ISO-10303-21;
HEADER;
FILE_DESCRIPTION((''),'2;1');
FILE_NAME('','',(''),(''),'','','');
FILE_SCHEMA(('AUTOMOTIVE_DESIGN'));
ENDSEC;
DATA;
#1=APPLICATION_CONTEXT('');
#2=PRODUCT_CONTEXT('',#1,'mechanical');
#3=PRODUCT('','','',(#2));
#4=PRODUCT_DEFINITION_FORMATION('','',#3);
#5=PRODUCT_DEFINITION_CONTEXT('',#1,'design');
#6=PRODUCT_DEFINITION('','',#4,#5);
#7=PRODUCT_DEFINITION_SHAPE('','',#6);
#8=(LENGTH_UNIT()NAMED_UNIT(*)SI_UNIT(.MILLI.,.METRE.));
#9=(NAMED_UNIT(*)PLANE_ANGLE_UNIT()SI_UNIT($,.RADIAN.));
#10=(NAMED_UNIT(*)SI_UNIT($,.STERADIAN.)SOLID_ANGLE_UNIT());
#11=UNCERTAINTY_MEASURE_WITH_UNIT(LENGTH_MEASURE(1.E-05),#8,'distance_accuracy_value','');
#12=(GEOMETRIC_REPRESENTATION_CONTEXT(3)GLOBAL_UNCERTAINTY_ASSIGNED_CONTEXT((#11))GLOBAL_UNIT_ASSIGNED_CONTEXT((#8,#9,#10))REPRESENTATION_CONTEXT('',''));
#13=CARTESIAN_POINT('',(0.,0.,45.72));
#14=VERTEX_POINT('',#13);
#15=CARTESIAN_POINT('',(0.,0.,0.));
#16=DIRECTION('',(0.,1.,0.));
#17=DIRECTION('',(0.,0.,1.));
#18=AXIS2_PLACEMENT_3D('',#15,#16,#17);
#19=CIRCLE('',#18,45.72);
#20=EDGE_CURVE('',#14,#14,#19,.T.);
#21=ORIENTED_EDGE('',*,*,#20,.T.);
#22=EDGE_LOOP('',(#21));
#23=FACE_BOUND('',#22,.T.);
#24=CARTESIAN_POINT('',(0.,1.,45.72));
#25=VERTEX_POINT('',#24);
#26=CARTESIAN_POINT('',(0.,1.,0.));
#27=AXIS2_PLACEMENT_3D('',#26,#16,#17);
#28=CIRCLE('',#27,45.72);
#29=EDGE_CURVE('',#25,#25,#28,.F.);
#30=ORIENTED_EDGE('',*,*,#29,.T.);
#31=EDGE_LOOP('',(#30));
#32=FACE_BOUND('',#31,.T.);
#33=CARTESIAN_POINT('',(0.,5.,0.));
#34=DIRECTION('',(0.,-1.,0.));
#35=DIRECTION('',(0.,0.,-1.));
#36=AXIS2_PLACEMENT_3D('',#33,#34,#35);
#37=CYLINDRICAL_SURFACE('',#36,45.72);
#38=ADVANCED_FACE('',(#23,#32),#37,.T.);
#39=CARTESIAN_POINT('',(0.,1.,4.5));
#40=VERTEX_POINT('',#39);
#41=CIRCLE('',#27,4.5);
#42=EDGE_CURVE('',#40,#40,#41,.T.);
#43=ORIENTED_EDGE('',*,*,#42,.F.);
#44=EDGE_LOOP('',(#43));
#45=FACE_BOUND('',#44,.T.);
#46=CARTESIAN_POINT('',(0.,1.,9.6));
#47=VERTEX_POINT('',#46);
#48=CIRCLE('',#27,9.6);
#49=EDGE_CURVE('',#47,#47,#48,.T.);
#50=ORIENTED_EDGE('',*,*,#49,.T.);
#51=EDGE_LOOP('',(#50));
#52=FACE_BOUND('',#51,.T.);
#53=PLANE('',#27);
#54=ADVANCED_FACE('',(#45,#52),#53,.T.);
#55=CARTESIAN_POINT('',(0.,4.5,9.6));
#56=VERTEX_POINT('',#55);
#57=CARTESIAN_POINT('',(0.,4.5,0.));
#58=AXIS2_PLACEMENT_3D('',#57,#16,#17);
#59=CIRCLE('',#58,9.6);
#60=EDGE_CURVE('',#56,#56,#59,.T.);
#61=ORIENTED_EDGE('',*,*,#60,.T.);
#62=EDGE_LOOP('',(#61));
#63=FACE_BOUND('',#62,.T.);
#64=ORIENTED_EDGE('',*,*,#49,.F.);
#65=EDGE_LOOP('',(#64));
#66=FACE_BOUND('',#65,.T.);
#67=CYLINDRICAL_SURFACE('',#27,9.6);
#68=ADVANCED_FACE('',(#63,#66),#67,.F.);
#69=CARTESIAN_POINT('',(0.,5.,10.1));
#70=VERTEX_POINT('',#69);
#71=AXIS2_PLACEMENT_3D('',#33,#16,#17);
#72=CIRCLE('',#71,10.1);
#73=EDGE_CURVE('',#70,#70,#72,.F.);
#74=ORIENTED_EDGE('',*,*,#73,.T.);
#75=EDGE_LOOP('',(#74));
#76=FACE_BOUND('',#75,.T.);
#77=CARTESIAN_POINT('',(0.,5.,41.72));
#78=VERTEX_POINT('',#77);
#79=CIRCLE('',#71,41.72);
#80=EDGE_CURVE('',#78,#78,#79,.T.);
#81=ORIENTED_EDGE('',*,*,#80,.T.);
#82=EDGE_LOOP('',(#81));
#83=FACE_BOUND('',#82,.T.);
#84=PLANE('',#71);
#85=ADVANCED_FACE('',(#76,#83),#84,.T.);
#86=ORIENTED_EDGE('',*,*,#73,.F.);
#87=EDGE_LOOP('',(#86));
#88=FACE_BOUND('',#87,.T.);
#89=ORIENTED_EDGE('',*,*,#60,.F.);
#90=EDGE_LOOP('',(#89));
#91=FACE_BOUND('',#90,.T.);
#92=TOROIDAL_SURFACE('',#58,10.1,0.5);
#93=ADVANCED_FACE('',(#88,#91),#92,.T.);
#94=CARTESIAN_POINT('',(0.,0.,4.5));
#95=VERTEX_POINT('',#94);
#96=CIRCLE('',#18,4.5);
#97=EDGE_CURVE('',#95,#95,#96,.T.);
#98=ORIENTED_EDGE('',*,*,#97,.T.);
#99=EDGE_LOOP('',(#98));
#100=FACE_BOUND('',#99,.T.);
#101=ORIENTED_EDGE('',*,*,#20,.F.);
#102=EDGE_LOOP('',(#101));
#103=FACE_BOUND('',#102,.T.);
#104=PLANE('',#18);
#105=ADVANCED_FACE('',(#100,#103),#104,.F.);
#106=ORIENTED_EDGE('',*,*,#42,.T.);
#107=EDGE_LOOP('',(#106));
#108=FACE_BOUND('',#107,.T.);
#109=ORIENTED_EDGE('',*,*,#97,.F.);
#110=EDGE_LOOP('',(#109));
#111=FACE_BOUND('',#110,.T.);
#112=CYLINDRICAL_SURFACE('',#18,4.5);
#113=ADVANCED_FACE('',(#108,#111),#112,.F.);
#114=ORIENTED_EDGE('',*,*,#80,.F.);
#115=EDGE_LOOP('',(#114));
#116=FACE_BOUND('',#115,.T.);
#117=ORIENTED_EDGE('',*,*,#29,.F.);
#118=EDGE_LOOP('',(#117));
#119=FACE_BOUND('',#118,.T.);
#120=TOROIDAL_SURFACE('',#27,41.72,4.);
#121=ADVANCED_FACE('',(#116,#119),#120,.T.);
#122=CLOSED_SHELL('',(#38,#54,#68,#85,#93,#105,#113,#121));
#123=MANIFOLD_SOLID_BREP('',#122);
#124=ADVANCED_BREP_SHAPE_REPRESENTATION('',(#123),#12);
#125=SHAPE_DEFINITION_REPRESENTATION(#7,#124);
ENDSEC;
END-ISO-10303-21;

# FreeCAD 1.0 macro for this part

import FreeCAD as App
import Part
import Sketcher
from FreeCAD import Vector
Q = App.Units.Quantity


def edges_at(feature, points):
    """Names of the edges that pass closest to the given points."""
    edges = feature.Shape.Edges
    near = lambda p: min(range(len(edges)), key=lambda i: edges[i].distToShape(Part.Vertex(*p))[0])
    return sorted({f"Edge{near(p) + 1}" for p in points})

doc = App.newDocument("Part")
body = doc.addObject("PartDesign::Body", "Body")

sketch1 = body.newObject("Sketcher::SketchObject", "Sketch")
sketch1.AttachmentSupport = (doc.getObject("XZ_Plane"), [""])
sketch1.MapMode = "FlatFace"
sketch1.addGeometry(Part.Circle(Vector(0, 0, 0), Vector(0, 0, 1), 46), False)
sketch1.addConstraint([
    Sketcher.Constraint("Coincident", 0, 3, -1, 1),
    Sketcher.Constraint("Diameter", 0, Q("91.44 mm")),
])
pad1 = body.newObject("PartDesign::Pad", "Pad")
pad1.Profile = sketch1
pad1.Length = 5
pad1.Reversed = True

sketch2 = body.newObject("Sketcher::SketchObject", "Sketch001")
sketch2.AttachmentSupport = (doc.getObject("XZ_Plane"), [""])
sketch2.MapMode = "FlatFace"
sketch2.AttachmentOffset = App.Placement(Vector(0, 0, -5), App.Rotation())
sketch2.addGeometry(Part.Circle(Vector(0, 0, 0), Vector(0, 0, 1), 10), False)
sketch2.addConstraint([
    Sketcher.Constraint("Coincident", 0, 3, -1, 1),
    Sketcher.Constraint("Diameter", 0, Q("19.2 mm")),
])
pocket1 = body.newObject("PartDesign::Pocket", "Pocket")
pocket1.Profile = sketch2
pocket1.Length = 4
pocket1.Reversed = True

sketch3 = body.newObject("Sketcher::SketchObject", "Sketch002")
sketch3.AttachmentSupport = (doc.getObject("XZ_Plane"), [""])
sketch3.MapMode = "FlatFace"
sketch3.AttachmentOffset = App.Placement(Vector(0, 0, -1), App.Rotation())
sketch3.addGeometry(Part.Circle(Vector(0, 0, 0), Vector(0, 0, 1), 4.5), False)
sketch3.addConstraint([
    Sketcher.Constraint("Coincident", 0, 3, -1, 1),
    Sketcher.Constraint("Diameter", 0, Q("9 mm")),
])
pocket2 = body.newObject("PartDesign::Pocket", "Pocket001")
pocket2.Profile = sketch3
pocket2.Type = "ThroughAll"
pocket2.Reversed = True
doc.recompute()

fillet = body.newObject("PartDesign::Fillet", "Fillet")
fillet.Base = (pocket2, edges_at(pocket2, [(0, 5, -45.72)]))
fillet.Radius = 4
doc.recompute()

fillet2 = body.newObject("PartDesign::Fillet", "Fillet001")
fillet2.Base = (fillet, edges_at(fillet, [(0, 5, -9.6)]))
fillet2.Radius = 0.5

doc.recompute()
